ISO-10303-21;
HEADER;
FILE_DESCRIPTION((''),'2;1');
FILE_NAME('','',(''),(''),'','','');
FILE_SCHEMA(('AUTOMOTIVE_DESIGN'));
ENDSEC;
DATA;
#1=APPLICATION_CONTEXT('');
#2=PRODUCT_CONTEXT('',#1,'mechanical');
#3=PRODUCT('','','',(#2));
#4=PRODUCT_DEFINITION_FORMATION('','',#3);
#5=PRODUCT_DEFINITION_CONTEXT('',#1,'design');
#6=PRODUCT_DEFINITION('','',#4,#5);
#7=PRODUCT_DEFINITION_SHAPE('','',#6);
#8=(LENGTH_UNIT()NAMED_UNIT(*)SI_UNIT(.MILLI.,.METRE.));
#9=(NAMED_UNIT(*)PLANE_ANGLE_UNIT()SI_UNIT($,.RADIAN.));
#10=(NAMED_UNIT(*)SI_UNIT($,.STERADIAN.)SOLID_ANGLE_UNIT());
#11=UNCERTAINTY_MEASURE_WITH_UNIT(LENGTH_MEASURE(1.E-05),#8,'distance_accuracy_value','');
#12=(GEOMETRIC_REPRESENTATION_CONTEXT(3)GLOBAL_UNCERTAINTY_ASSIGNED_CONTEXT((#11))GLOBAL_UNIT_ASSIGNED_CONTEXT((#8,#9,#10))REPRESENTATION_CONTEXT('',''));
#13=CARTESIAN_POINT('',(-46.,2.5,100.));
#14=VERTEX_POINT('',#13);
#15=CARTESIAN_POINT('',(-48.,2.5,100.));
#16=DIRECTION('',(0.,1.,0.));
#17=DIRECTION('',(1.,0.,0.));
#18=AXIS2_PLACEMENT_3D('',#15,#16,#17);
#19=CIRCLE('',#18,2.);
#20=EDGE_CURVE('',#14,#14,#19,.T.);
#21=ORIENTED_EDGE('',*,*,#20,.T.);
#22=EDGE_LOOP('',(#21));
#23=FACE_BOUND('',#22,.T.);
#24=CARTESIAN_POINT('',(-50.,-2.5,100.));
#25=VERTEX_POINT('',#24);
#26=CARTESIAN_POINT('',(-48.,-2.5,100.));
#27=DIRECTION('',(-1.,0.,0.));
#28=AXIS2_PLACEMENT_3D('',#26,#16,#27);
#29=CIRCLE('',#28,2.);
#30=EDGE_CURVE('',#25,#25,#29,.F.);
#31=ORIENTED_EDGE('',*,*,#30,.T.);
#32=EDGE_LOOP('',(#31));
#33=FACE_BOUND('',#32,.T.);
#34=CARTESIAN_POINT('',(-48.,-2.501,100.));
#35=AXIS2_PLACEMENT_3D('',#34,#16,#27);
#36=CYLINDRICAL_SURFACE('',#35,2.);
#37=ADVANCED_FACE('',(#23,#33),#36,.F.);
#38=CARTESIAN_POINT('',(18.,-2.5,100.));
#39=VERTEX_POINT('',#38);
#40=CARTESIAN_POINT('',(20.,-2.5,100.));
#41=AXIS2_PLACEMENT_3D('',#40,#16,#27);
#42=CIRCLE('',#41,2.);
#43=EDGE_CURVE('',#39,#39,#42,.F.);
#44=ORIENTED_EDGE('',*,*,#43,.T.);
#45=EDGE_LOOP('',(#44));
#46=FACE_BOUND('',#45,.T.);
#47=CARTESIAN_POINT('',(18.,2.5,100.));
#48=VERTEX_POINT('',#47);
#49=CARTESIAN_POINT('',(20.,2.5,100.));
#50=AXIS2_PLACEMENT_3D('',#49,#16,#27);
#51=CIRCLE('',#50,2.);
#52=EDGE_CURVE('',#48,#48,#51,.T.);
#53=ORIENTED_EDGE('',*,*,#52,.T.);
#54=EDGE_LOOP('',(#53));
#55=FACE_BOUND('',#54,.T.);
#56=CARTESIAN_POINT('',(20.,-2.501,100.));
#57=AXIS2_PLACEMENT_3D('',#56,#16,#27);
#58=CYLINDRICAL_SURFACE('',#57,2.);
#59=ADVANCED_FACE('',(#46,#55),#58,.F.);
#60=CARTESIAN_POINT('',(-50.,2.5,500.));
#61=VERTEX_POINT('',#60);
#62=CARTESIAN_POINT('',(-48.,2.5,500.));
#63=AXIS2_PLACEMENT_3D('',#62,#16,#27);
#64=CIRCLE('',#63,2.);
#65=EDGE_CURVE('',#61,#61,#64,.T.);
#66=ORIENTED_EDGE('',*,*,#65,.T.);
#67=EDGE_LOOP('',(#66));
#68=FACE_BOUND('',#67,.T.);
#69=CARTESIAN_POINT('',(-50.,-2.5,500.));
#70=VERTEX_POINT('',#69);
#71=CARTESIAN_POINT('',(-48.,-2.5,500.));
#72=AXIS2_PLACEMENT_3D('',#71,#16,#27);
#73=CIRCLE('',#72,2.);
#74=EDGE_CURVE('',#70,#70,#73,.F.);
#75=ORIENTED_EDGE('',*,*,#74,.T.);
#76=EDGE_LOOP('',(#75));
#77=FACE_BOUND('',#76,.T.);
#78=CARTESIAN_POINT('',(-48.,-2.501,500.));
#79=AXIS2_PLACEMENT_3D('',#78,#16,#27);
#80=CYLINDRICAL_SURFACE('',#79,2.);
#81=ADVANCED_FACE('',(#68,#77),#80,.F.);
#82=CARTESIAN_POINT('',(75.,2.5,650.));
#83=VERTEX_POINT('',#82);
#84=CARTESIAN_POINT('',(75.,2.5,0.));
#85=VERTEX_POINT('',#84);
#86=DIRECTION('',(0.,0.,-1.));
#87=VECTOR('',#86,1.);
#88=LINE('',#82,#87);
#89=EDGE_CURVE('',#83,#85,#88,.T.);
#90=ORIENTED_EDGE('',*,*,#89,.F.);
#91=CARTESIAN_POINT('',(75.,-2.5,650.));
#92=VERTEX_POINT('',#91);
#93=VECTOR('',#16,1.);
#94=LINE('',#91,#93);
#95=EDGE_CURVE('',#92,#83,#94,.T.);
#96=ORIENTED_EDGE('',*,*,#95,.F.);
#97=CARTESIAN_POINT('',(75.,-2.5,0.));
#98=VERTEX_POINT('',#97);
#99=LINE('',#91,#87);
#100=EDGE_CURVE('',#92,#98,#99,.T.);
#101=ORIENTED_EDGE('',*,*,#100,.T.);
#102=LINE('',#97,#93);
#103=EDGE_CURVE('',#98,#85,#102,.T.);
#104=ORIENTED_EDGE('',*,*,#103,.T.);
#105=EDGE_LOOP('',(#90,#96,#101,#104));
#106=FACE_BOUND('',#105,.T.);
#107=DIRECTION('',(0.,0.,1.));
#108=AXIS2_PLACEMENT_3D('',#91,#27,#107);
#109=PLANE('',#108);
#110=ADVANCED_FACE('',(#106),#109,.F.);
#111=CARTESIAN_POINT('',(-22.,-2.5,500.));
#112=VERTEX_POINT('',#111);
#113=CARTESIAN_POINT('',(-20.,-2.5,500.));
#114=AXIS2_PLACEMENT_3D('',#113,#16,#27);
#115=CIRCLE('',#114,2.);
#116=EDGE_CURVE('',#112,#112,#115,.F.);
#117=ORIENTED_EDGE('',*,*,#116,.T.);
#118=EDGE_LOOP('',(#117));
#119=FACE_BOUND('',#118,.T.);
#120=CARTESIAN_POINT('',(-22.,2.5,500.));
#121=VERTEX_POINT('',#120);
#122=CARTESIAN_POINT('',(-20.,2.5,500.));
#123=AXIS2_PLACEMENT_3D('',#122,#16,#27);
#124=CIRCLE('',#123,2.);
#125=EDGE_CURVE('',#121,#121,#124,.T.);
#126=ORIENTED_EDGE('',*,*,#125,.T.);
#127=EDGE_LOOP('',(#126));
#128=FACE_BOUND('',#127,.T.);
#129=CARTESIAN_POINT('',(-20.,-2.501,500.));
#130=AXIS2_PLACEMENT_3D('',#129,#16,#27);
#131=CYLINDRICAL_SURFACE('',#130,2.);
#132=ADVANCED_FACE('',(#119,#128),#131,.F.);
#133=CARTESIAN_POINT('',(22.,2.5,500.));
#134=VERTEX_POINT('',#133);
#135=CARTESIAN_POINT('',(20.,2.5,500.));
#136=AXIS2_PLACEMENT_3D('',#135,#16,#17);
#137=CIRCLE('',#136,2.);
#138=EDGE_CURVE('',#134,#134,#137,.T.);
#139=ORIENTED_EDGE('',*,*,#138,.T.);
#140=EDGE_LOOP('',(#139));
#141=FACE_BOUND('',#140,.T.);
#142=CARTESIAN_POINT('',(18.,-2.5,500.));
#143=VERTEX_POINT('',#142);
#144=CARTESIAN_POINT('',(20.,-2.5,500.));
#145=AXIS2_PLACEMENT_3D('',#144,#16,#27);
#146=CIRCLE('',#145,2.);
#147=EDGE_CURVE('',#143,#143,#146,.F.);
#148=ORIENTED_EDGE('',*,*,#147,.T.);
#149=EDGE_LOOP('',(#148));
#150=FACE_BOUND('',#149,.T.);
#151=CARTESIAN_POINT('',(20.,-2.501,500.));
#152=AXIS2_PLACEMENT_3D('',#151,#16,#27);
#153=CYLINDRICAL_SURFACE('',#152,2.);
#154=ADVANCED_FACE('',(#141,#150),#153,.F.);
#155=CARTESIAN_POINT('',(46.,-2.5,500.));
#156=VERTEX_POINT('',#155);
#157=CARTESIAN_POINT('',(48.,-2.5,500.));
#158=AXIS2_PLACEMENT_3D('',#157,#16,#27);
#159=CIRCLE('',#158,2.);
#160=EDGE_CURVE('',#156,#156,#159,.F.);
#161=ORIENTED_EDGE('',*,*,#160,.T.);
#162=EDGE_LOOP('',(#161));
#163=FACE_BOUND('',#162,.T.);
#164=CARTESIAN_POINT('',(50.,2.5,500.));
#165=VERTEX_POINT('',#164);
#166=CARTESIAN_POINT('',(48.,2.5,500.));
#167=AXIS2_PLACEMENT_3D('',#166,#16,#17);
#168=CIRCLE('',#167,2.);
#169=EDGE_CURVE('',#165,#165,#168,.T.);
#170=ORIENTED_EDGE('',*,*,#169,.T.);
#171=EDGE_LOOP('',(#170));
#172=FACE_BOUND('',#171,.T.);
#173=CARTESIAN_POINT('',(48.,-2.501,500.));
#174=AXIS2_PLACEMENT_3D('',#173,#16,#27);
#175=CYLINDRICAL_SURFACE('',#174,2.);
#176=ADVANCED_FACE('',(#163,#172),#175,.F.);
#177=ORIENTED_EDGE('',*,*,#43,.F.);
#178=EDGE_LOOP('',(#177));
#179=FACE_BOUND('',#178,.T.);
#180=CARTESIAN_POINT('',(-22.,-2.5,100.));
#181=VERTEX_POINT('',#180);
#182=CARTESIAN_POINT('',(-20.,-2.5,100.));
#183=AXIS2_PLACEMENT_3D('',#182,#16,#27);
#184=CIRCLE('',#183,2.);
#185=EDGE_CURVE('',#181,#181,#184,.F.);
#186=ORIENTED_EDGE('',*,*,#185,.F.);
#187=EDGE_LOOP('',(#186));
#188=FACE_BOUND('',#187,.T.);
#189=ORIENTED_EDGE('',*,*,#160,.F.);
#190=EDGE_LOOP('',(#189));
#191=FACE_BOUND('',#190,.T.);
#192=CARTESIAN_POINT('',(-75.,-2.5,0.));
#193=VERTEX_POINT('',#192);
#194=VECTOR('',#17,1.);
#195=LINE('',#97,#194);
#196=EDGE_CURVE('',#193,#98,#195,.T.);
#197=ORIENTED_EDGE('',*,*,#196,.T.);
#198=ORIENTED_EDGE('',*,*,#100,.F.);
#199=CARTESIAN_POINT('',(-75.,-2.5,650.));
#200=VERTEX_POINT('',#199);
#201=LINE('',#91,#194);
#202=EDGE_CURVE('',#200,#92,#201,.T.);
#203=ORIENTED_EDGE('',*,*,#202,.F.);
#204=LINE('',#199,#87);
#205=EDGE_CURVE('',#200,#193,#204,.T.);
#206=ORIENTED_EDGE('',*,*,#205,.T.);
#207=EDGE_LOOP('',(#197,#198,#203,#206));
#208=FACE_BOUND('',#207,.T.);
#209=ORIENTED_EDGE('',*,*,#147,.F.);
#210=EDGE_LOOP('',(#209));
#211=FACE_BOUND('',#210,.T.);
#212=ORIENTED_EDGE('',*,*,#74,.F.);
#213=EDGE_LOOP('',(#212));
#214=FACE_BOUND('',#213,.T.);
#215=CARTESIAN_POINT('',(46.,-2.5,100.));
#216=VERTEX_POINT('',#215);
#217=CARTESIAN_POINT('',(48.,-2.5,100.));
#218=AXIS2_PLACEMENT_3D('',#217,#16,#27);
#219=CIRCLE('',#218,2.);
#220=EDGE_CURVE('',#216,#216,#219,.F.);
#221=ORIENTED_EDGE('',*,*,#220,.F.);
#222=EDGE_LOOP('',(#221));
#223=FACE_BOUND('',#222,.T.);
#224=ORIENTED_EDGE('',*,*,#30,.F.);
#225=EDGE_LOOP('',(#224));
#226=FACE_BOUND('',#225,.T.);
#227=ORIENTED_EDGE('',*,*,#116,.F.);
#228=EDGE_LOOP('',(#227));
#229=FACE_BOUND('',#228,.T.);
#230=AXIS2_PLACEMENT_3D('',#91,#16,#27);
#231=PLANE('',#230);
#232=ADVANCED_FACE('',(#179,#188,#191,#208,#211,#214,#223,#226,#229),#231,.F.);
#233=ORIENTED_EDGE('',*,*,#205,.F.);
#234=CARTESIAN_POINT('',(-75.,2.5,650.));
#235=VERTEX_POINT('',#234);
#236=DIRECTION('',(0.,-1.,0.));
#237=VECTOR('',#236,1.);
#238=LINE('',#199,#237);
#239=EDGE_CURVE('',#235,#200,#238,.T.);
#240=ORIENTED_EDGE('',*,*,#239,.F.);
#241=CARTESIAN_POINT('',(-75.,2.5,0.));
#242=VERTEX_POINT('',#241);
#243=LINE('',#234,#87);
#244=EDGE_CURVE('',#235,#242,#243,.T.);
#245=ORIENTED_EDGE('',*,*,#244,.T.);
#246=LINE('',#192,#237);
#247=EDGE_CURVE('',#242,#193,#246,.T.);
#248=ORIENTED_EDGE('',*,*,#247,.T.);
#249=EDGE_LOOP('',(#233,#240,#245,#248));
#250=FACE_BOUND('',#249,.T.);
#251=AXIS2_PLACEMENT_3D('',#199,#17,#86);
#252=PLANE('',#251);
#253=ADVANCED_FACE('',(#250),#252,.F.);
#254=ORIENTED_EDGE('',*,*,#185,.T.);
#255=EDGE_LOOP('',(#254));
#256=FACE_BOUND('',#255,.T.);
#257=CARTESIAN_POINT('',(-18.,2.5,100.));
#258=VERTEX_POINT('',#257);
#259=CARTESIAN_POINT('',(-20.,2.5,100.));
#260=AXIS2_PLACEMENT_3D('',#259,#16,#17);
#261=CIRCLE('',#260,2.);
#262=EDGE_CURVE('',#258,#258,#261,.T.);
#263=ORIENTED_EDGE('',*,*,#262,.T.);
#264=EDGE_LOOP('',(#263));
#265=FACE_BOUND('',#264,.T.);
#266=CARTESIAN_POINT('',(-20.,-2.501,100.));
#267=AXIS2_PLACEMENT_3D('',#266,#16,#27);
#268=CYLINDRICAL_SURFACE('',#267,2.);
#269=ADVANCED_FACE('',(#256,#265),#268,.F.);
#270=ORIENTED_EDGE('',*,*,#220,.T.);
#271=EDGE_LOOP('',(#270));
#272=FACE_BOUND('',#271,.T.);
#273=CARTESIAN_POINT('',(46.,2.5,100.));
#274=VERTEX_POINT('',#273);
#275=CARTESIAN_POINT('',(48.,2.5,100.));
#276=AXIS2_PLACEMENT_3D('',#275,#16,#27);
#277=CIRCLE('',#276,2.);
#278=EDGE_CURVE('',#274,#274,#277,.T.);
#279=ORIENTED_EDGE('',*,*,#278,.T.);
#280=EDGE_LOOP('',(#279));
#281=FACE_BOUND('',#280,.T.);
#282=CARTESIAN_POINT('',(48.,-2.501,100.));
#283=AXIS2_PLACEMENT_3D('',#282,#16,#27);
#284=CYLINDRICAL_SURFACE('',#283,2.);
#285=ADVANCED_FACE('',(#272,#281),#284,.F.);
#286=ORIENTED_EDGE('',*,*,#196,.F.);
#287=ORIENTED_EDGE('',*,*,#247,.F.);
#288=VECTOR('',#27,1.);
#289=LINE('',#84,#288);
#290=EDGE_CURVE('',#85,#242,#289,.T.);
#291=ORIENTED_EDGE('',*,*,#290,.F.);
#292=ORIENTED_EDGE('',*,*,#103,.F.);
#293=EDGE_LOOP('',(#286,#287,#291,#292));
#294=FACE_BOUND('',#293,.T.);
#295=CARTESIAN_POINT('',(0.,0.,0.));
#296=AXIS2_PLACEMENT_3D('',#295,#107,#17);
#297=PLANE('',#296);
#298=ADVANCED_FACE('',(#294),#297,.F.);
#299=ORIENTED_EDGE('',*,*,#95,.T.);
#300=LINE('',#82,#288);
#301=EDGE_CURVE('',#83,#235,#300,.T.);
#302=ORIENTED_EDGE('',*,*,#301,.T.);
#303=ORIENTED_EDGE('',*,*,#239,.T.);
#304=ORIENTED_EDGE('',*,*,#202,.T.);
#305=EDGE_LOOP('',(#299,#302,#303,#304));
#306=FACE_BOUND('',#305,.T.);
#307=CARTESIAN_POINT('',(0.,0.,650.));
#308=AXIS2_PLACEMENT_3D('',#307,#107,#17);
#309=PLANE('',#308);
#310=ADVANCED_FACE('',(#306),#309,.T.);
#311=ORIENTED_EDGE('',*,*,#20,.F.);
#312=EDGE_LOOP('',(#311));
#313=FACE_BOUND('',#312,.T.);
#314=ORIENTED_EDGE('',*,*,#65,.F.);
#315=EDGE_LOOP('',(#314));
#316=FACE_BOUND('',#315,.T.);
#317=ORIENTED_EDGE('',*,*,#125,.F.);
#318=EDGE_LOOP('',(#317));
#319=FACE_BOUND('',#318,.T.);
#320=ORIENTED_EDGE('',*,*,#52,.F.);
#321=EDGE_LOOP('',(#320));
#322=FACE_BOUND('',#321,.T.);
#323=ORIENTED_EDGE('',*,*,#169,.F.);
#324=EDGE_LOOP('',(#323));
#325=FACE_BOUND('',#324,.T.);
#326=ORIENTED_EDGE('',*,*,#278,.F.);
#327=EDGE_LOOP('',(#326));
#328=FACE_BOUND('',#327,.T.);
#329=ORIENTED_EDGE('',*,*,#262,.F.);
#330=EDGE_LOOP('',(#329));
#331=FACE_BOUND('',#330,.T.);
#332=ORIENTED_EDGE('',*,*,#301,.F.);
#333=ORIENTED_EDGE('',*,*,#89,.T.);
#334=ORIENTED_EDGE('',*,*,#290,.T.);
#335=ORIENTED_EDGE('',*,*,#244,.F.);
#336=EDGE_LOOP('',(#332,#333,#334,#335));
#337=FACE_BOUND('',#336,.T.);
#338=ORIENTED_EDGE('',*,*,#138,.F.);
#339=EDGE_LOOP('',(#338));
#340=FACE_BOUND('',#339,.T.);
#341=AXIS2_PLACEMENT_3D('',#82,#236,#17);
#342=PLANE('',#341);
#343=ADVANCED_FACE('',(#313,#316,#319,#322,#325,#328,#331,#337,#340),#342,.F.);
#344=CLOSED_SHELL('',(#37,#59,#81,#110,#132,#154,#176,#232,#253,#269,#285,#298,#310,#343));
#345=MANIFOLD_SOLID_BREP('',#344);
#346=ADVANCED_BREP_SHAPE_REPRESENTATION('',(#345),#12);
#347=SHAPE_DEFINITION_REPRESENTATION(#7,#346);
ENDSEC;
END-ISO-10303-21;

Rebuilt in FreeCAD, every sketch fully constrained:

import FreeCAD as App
import Part
import Sketcher
Q = App.Units.Quantity

doc = App.newDocument("Part")
body = doc.addObject("PartDesign::Body", "Body")

# Sketch on XY plane
sketch1 = doc.addObject("Sketcher::SketchObject", "Sketch")
body.addObject(sketch1)
sketch1.AttachmentSupport = (doc.XY_Plane, [""])
sketch1.MapMode = "FlatFace"
sketch1.addGeometry(Part.LineSegment(App.Vector(-75, 2, 0), App.Vector(-75, -2, 0)), False)
sketch1.addGeometry(Part.LineSegment(App.Vector(-75, -2, 0), App.Vector(75, -2, 0)), False)
sketch1.addGeometry(Part.LineSegment(App.Vector(75, -2, 0), App.Vector(75, 2, 0)), False)
sketch1.addGeometry(Part.LineSegment(App.Vector(75, 2, 0), App.Vector(-75, 2, 0)), False)
sketch1.addConstraint(Sketcher.Constraint("Coincident", 0, 2, 1, 1))
sketch1.addConstraint(Sketcher.Constraint("Coincident", 1, 2, 2, 1))
sketch1.addConstraint(Sketcher.Constraint("Coincident", 2, 2, 3, 1))
sketch1.addConstraint(Sketcher.Constraint("Coincident", 3, 2, 0, 1))
sketch1.addConstraint(Sketcher.Constraint("Vertical", 0))
sketch1.addConstraint(Sketcher.Constraint("Horizontal", 1))
sketch1.addConstraint(Sketcher.Constraint("Vertical", 2))
sketch1.addConstraint(Sketcher.Constraint("Horizontal", 3))
sketch1.addConstraint(Sketcher.Constraint("Symmetric", 0, 2, 2, 2, -1, 1))
sketch1.addConstraint(Sketcher.Constraint("DistanceX", 1, 1, 1, 2, Q("150 mm")))
sketch1.addConstraint(Sketcher.Constraint("DistanceY", 0, 2, 0, 1, Q("5 mm")))
pad1 = doc.addObject("PartDesign::Pad", "Pad")
body.addObject(pad1)
pad1.Profile = sketch1
pad1.Length = 650

# Sketch on XZ plane
sketch2 = doc.addObject("Sketcher::SketchObject", "Sketch001")
body.addObject(sketch2)
sketch2.AttachmentSupport = (doc.XZ_Plane, [""])
sketch2.MapMode = "FlatFace"
sketch2.AttachmentOffset = App.Placement(App.Vector(0, 0, -2.5), App.Rotation())
sketch2.addGeometry(Part.Circle(App.Vector(-20, 500, 0), App.Vector(0, 0, 1), 2), False)
sketch2.addConstraint(Sketcher.Constraint("Diameter", 0, Q("4 mm")))
sketch2.addConstraint(Sketcher.Constraint("DistanceX", 0, 3, -1, 1, Q("20 mm")))
sketch2.addConstraint(Sketcher.Constraint("DistanceY", -1, 1, 0, 3, Q("500 mm")))
pocket1 = doc.addObject("PartDesign::Pocket", "Pocket")
body.addObject(pocket1)
pocket1.Profile = sketch2
pocket1.Type = "UpToFirst"
pocket1.Reversed = True

# Sketch on XZ plane
sketch3 = doc.addObject("Sketcher::SketchObject", "Sketch002")
body.addObject(sketch3)
sketch3.AttachmentSupport = (doc.XZ_Plane, [""])
sketch3.MapMode = "FlatFace"
sketch3.AttachmentOffset = App.Placement(App.Vector(0, 0, -2.5), App.Rotation())
sketch3.addGeometry(Part.Circle(App.Vector(-48, 500, 0), App.Vector(0, 0, 1), 2), False)
sketch3.addConstraint(Sketcher.Constraint("Diameter", 0, Q("4 mm")))
sketch3.addConstraint(Sketcher.Constraint("DistanceX", 0, 3, -1, 1, Q("48 mm")))
sketch3.addConstraint(Sketcher.Constraint("DistanceY", -1, 1, 0, 3, Q("500 mm")))
pocket2 = doc.addObject("PartDesign::Pocket", "Pocket001")
body.addObject(pocket2)
pocket2.Profile = sketch3
pocket2.Type = "UpToFirst"
pocket2.Reversed = True

# Sketch on XZ plane
sketch4 = doc.addObject("Sketcher::SketchObject", "Sketch003")
body.addObject(sketch4)
sketch4.AttachmentSupport = (doc.XZ_Plane, [""])
sketch4.MapMode = "FlatFace"
sketch4.AttachmentOffset = App.Placement(App.Vector(0, 0, -2.5), App.Rotation())
sketch4.addGeometry(Part.Circle(App.Vector(48, 500, 0), App.Vector(0, 0, 1), 2), False)
sketch4.addConstraint(Sketcher.Constraint("Diameter", 0, Q("4 mm")))
sketch4.addConstraint(Sketcher.Constraint("DistanceX", -1, 1, 0, 3, Q("48 mm")))
sketch4.addConstraint(Sketcher.Constraint("DistanceY", -1, 1, 0, 3, Q("500 mm")))
pocket3 = doc.addObject("PartDesign::Pocket", "Pocket002")
body.addObject(pocket3)
pocket3.Profile = sketch4
pocket3.Type = "UpToFirst"
pocket3.Reversed = True

# Sketch on XZ plane
sketch5 = doc.addObject("Sketcher::SketchObject", "Sketch004")
body.addObject(sketch5)
sketch5.AttachmentSupport = (doc.XZ_Plane, [""])
sketch5.MapMode = "FlatFace"
sketch5.AttachmentOffset = App.Placement(App.Vector(0, 0, -2.5), App.Rotation())
sketch5.addGeometry(Part.Circle(App.Vector(20, 500, 0), App.Vector(0, 0, 1), 2), False)
sketch5.addConstraint(Sketcher.Constraint("Diameter", 0, Q("4 mm")))
sketch5.addConstraint(Sketcher.Constraint("DistanceX", -1, 1, 0, 3, Q("20 mm")))
sketch5.addConstraint(Sketcher.Constraint("DistanceY", -1, 1, 0, 3, Q("500 mm")))
pocket4 = doc.addObject("PartDesign::Pocket", "Pocket003")
body.addObject(pocket4)
pocket4.Profile = sketch5
pocket4.Type = "UpToFirst"
pocket4.Reversed = True

# Sketch on XZ plane
sketch6 = doc.addObject("Sketcher::SketchObject", "Sketch005")
body.addObject(sketch6)
sketch6.AttachmentSupport = (doc.XZ_Plane, [""])
sketch6.MapMode = "FlatFace"
sketch6.AttachmentOffset = App.Placement(App.Vector(0, 0, -2.5), App.Rotation())
sketch6.addGeometry(Part.Circle(App.Vector(48, 100, 0), App.Vector(0, 0, 1), 2), False)
sketch6.addConstraint(Sketcher.Constraint("Diameter", 0, Q("4 mm")))
sketch6.addConstraint(Sketcher.Constraint("DistanceX", -1, 1, 0, 3, Q("48 mm")))
sketch6.addConstraint(Sketcher.Constraint("DistanceY", -1, 1, 0, 3, Q("100 mm")))
pocket5 = doc.addObject("PartDesign::Pocket", "Pocket004")
body.addObject(pocket5)
pocket5.Profile = sketch6
pocket5.Type = "UpToFirst"
pocket5.Reversed = True

# Sketch on XZ plane
sketch7 = doc.addObject("Sketcher::SketchObject", "Sketch006")
body.addObject(sketch7)
sketch7.AttachmentSupport = (doc.XZ_Plane, [""])
sketch7.MapMode = "FlatFace"
sketch7.AttachmentOffset = App.Placement(App.Vector(0, 0, -2.5), App.Rotation())
sketch7.addGeometry(Part.Circle(App.Vector(20, 100, 0), App.Vector(0, 0, 1), 2), False)
sketch7.addConstraint(Sketcher.Constraint("Diameter", 0, Q("4 mm")))
sketch7.addConstraint(Sketcher.Constraint("DistanceX", -1, 1, 0, 3, Q("20 mm")))
sketch7.addConstraint(Sketcher.Constraint("DistanceY", -1, 1, 0, 3, Q("100 mm")))
pocket6 = doc.addObject("PartDesign::Pocket", "Pocket005")
body.addObject(pocket6)
pocket6.Profile = sketch7
pocket6.Type = "UpToFirst"
pocket6.Reversed = True

# Sketch on XZ plane
sketch8 = doc.addObject("Sketcher::SketchObject", "Sketch007")
body.addObject(sketch8)
sketch8.AttachmentSupport = (doc.XZ_Plane, [""])
sketch8.MapMode = "FlatFace"
sketch8.AttachmentOffset = App.Placement(App.Vector(0, 0, -2.5), App.Rotation())
sketch8.addGeometry(Part.Circle(App.Vector(-20, 100, 0), App.Vector(0, 0, 1), 2), False)
sketch8.addConstraint(Sketcher.Constraint("Diameter", 0, Q("4 mm")))
sketch8.addConstraint(Sketcher.Constraint("DistanceX", 0, 3, -1, 1, Q("20 mm")))
sketch8.addConstraint(Sketcher.Constraint("DistanceY", -1, 1, 0, 3, Q("100 mm")))
pocket7 = doc.addObject("PartDesign::Pocket", "Pocket006")
body.addObject(pocket7)
pocket7.Profile = sketch8
pocket7.Type = "UpToFirst"
pocket7.Reversed = True

# Sketch on XZ plane
sketch9 = doc.addObject("Sketcher::SketchObject", "Sketch008")
body.addObject(sketch9)
sketch9.AttachmentSupport = (doc.XZ_Plane, [""])
sketch9.MapMode = "FlatFace"
sketch9.AttachmentOffset = App.Placement(App.Vector(0, 0, -2.5), App.Rotation())
sketch9.addGeometry(Part.Circle(App.Vector(-48, 100, 0), App.Vector(0, 0, 1), 2), False)
sketch9.addConstraint(Sketcher.Constraint("Diameter", 0, Q("4 mm")))
sketch9.addConstraint(Sketcher.Constraint("DistanceX", 0, 3, -1, 1, Q("48 mm")))
sketch9.addConstraint(Sketcher.Constraint("DistanceY", -1, 1, 0, 3, Q("100 mm")))
pocket8 = doc.addObject("PartDesign::Pocket", "Pocket007")
body.addObject(pocket8)
pocket8.Profile = sketch9
pocket8.Type = "UpToFirst"
pocket8.Reversed = True

doc.recompute()
